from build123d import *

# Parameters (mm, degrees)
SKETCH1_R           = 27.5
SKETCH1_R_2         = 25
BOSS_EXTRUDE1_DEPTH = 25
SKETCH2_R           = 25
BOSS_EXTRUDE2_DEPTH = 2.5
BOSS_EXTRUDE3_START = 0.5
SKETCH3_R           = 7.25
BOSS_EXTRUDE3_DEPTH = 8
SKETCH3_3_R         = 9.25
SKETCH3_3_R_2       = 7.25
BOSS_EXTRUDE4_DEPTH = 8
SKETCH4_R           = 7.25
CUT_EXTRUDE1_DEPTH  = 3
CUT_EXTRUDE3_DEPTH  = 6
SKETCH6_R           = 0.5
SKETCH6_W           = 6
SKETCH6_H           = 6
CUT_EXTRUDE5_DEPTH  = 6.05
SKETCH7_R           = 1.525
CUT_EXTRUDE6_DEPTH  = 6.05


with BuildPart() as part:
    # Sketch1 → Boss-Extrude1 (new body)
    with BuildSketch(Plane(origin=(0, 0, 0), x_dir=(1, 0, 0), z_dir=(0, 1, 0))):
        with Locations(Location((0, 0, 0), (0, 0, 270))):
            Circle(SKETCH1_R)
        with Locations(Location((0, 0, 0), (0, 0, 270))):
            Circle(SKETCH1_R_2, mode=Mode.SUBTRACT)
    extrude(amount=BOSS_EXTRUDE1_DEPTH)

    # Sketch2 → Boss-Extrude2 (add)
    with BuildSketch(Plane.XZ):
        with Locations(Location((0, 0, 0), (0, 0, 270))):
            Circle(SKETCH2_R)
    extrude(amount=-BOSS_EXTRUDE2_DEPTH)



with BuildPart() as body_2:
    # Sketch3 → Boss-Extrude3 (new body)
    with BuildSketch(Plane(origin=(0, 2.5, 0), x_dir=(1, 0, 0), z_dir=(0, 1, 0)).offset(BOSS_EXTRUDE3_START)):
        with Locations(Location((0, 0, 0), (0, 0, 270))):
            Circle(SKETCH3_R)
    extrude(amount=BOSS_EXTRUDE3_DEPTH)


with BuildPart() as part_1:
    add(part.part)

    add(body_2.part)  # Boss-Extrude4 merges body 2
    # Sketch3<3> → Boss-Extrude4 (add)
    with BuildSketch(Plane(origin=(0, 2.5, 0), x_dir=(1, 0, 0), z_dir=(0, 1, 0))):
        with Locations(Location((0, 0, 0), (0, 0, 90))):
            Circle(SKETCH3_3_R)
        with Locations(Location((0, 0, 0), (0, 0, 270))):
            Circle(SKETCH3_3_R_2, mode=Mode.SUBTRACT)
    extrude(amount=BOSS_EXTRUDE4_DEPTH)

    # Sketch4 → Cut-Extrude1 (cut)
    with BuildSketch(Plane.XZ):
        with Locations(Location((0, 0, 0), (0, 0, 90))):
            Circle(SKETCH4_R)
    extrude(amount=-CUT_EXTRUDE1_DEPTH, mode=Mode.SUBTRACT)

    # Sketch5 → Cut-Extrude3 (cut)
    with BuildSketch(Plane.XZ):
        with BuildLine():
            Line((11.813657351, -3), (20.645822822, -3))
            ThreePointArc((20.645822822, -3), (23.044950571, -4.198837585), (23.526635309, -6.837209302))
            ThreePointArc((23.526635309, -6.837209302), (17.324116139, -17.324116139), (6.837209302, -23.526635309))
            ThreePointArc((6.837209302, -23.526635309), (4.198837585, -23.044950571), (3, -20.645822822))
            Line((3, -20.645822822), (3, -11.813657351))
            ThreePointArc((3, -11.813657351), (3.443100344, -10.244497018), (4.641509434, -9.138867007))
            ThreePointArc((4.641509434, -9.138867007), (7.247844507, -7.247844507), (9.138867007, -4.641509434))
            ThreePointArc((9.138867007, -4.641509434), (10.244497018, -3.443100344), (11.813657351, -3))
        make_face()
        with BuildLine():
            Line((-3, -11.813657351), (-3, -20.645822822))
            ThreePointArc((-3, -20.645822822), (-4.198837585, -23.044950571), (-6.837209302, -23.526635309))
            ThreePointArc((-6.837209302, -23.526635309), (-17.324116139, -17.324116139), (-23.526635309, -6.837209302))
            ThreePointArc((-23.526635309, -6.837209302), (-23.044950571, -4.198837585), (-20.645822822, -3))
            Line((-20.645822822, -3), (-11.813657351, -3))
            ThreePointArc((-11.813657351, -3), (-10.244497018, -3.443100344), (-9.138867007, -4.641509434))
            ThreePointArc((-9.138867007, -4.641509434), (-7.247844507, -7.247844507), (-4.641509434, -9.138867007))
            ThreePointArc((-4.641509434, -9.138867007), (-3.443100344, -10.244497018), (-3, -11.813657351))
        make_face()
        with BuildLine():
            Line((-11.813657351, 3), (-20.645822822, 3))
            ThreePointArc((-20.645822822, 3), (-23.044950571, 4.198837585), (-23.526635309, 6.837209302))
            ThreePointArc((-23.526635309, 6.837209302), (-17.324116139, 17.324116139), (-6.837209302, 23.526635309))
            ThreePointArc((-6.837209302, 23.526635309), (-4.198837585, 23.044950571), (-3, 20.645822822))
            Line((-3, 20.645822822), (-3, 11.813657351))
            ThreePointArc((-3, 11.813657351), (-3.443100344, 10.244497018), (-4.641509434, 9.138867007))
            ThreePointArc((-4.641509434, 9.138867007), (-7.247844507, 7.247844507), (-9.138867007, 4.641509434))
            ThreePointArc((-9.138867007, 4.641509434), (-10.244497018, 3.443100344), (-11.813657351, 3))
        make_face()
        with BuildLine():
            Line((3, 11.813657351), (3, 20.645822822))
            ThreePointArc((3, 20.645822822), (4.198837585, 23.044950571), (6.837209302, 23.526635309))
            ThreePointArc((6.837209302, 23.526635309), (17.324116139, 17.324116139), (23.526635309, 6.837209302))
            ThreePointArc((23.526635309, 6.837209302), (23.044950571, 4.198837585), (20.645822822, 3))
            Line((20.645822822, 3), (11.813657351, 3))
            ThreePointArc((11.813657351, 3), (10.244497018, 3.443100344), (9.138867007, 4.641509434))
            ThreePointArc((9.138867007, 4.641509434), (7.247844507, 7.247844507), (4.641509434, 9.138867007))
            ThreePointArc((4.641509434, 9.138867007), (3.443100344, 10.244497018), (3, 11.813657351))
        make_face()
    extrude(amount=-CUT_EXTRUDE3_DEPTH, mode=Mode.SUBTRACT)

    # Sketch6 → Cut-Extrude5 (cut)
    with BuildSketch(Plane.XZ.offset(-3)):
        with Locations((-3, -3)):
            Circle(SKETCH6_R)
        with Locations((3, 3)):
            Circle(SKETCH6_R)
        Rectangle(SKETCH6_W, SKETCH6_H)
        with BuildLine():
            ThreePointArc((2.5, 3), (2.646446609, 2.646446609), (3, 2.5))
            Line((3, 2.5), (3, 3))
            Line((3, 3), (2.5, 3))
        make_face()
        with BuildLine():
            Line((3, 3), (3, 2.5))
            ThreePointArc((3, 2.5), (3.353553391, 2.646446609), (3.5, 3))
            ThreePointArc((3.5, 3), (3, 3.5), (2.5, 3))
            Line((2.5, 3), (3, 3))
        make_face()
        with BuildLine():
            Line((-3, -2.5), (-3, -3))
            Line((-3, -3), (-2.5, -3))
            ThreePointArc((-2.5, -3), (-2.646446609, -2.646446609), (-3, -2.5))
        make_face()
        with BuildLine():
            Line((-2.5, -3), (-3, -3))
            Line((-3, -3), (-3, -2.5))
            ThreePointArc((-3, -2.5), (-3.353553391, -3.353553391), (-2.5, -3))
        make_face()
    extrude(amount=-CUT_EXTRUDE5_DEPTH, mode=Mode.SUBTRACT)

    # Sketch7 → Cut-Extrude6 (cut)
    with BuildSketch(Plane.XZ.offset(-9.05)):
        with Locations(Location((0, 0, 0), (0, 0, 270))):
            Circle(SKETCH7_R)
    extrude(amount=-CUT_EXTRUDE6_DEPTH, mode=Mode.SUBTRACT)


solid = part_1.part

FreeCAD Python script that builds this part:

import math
import FreeCAD as App
import Part
import Sketcher
from FreeCAD import Vector
Q = App.Units.Quantity

doc = App.newDocument("Part")
params = doc.addObject("Spreadsheet::Sheet", "Params")
for row, (alias, value) in enumerate([
    ("sketch1_diameter", "55 mm"),
    ("sketch1_diameter2", "50 mm"),
    ("pad1_length", "25 mm"),
    ("sketch2_diameter", "50 mm"),
    ("pad2_length", "2.5 mm"),
    ("sketch3_diameter", "14.5 mm"),
    ("pad3_length", "8 mm"),
    ("sketch4_diameter", "18.5 mm"),
    ("sketch4_diameter2", "14.5 mm"),
    ("pad4_length", "8 mm"),
    ("sketch5_diameter", "14.5 mm"),
    ("pocket1_length", "3 mm"),
    ("sketch6_radius", "3 mm"),
    ("sketch6_radius2", "24.5 mm"),
    ("sketch6_radius3", "10.25 mm"),
    ("pocket2_length", "6 mm"),
    ("sketch7_radius", "0.5 mm"),
    ("sketch7_width", "5.5 mm"),
    ("pocket3_length", "6.05 mm"),
    ("sketch8_diameter", "3.05 mm"),
    ("pocket4_length", "6.05 mm"),
], start=1):
    params.set(f"A{row}", alias)
    params.set(f"B{row}", "=" + value)
    params.setAlias(f"B{row}", alias)

body = doc.addObject("PartDesign::Body", "Body")

# Sketch on XZ plane
sketch1 = body.newObject("Sketcher::SketchObject", "Sketch")
sketch1.AttachmentSupport = (doc.getObject("XZ_Plane"), [""])
sketch1.MapMode = "FlatFace"
sketch1.addGeometry(Part.Circle(Vector(0, 0, 0), Vector(0, 0, 1), 27.5), False)
sketch1.addGeometry(Part.Circle(Vector(0, 0, 0), Vector(0, 0, 1), 25), False)
sketch1.addConstraint(Sketcher.Constraint("Coincident", 0, 3, -1, 1))
sketch1.addConstraint(Sketcher.Constraint("Coincident", 1, 3, -1, 1))
sketch1.addConstraint(Sketcher.Constraint("Diameter", 0, Q("55 mm")))
sketch1.addConstraint(Sketcher.Constraint("Diameter", 1, Q("50 mm")))
sketch1.setExpression("Constraints[2]", "Params.sketch1_diameter")
sketch1.setExpression("Constraints[3]", "Params.sketch1_diameter2")
pad1 = body.newObject("PartDesign::Pad", "Pad")
pad1.Profile = sketch1
pad1.setExpression("Length", "Params.pad1_length")
pad1.Reversed = True

# Sketch on XZ plane
sketch2 = body.newObject("Sketcher::SketchObject", "Sketch001")
sketch2.AttachmentSupport = (doc.getObject("XZ_Plane"), [""])
sketch2.MapMode = "FlatFace"
sketch2.addGeometry(Part.Circle(Vector(0, 0, 0), Vector(0, 0, 1), 25), False)
sketch2.addConstraint(Sketcher.Constraint("Coincident", 0, 3, -1, 1))
sketch2.addConstraint(Sketcher.Constraint("Diameter", 0, Q("50 mm")))
sketch2.setExpression("Constraints[1]", "Params.sketch2_diameter")
pad2 = body.newObject("PartDesign::Pad", "Pad001")
pad2.Profile = sketch2
pad2.setExpression("Length", "Params.pad2_length")
pad2.Reversed = True
body2 = doc.addObject("PartDesign::Body", "Body001")

# Sketch on XZ plane
sketch3 = body2.newObject("Sketcher::SketchObject", "Sketch002")
sketch3.AttachmentSupport = (doc.getObject("XZ_Plane001"), [""])
sketch3.MapMode = "FlatFace"
sketch3.AttachmentOffset = App.Placement(Vector(0, 0, -3), App.Rotation())
sketch3.addGeometry(Part.Circle(Vector(0, 0, 0), Vector(0, 0, 1), 7.25), False)
sketch3.addConstraint(Sketcher.Constraint("Coincident", 0, 3, -1, 1))
sketch3.addConstraint(Sketcher.Constraint("Diameter", 0, Q("14.5 mm")))
sketch3.setExpression("Constraints[1]", "Params.sketch3_diameter")
pad3 = body2.newObject("PartDesign::Pad", "Pad002")
pad3.Profile = sketch3
pad3.setExpression("Length", "Params.pad3_length")
pad3.Reversed = True
body.AllowCompound = True
doc.recompute()

boolean = body.newObject("PartDesign::Boolean", "Boolean")
boolean.Type = "Fuse"
boolean.addObjects([body2])

# Sketch on XZ plane
sketch4 = body.newObject("Sketcher::SketchObject", "Sketch003")
sketch4.AttachmentSupport = (doc.getObject("XZ_Plane"), [""])
sketch4.MapMode = "FlatFace"
sketch4.AttachmentOffset = App.Placement(Vector(0, 0, -2.5), App.Rotation())
sketch4.addGeometry(Part.Circle(Vector(0, 0, 0), Vector(0, 0, 1), 9.25), False)
sketch4.addGeometry(Part.Circle(Vector(0, 0, 0), Vector(0, 0, 1), 7.25), False)
sketch4.addConstraint(Sketcher.Constraint("Coincident", 0, 3, -1, 1))
sketch4.addConstraint(Sketcher.Constraint("Coincident", 1, 3, -1, 1))
sketch4.addConstraint(Sketcher.Constraint("Diameter", 0, Q("18.5 mm")))
sketch4.addConstraint(Sketcher.Constraint("Diameter", 1, Q("14.5 mm")))
sketch4.setExpression("Constraints[2]", "Params.sketch4_diameter")
sketch4.setExpression("Constraints[3]", "Params.sketch4_diameter2")
pad4 = body.newObject("PartDesign::Pad", "Pad003")
pad4.Profile = sketch4
pad4.setExpression("Length", "Params.pad4_length")
pad4.Reversed = True

# Sketch on XZ plane
sketch5 = body.newObject("Sketcher::SketchObject", "Sketch004")
sketch5.AttachmentSupport = (doc.getObject("XZ_Plane"), [""])
sketch5.MapMode = "FlatFace"
sketch5.addGeometry(Part.Circle(Vector(0, 0, 0), Vector(0, 0, 1), 7.25), False)
sketch5.addConstraint(Sketcher.Constraint("Coincident", 0, 3, -1, 1))
sketch5.addConstraint(Sketcher.Constraint("Diameter", 0, Q("14.5 mm")))
sketch5.setExpression("Constraints[1]", "Params.sketch5_diameter")
pocket1 = body.newObject("PartDesign::Pocket", "Pocket")
pocket1.Profile = sketch5
pocket1.setExpression("Length", "Params.pocket1_length")

# Sketch on XZ plane
sketch6 = body.newObject("Sketcher::SketchObject", "Sketch005")
sketch6.AttachmentSupport = (doc.getObject("XZ_Plane"), [""])
sketch6.MapMode = "FlatFace"
sketch6.addGeometry(Part.LineSegment(Vector(20.645823, -3, 0), Vector(11.813657, -3, 0)), False)
sketch6.addGeometry(Part.ArcOfCircle(Part.Circle(Vector(11.813657, -6, 0), Vector(0, 0, 1), 3), math.radians(90), math.radians(153.074589)), False)
sketch6.addGeometry(Part.ArcOfCircle(Part.Circle(Vector(0, 0, 0), Vector(0, 0, 1), 10.25), math.radians(-63.074589), math.radians(-26.925411)), False)
sketch6.addGeometry(Part.ArcOfCircle(Part.Circle(Vector(6, -11.813657, 0), Vector(0, 0, 1), 3), math.radians(116.925411), math.radians(180)), False)
sketch6.addGeometry(Part.LineSegment(Vector(3, -11.813657, 0), Vector(3, -20.645823, 0)), False)
sketch6.addGeometry(Part.ArcOfCircle(Part.Circle(Vector(6, -20.645823, 0), Vector(0, 0, 1), 3), math.radians(180), math.radians(286.204693)), False)
sketch6.addGeometry(Part.ArcOfCircle(Part.Circle(Vector(0, 0, 0), Vector(0, 0, 1), 24.5), math.radians(-73.795307), math.radians(-16.204693)), False)
sketch6.addGeometry(Part.ArcOfCircle(Part.Circle(Vector(20.645823, -6, 0), Vector(0, 0, 1), 3), math.radians(-16.204693), math.radians(90)), False)
sketch6.addGeometry(Part.LineSegment(Vector(-3, -20.645823, 0), Vector(-3, -11.813657, 0)), False)
sketch6.addGeometry(Part.ArcOfCircle(Part.Circle(Vector(-6, -11.813657, 0), Vector(0, 0, 1), 3), math.radians(0), math.radians(63.074589)), False)
sketch6.addGeometry(Part.ArcOfCircle(Part.Circle(Vector(0, 0, 0), Vector(0, 0, 1), 10.25), math.radians(-153.074589), math.radians(-116.925411)), False)
sketch6.addGeometry(Part.ArcOfCircle(Part.Circle(Vector(-11.813657, -6, 0), Vector(0, 0, 1), 3), math.radians(26.925411), math.radians(90)), False)
sketch6.addGeometry(Part.LineSegment(Vector(-11.813657, -3, 0), Vector(-20.645823, -3, 0)), False)
sketch6.addGeometry(Part.ArcOfCircle(Part.Circle(Vector(-20.645823, -6, 0), Vector(0, 0, 1), 3), math.radians(90), math.radians(196.204693)), False)
sketch6.addGeometry(Part.ArcOfCircle(Part.Circle(Vector(0, 0, 0), Vector(0, 0, 1), 24.5), math.radians(-163.795307), math.radians(-106.204693)), False)
sketch6.addGeometry(Part.ArcOfCircle(Part.Circle(Vector(-6, -20.645823, 0), Vector(0, 0, 1), 3), math.radians(-106.204693), math.radians(0)), False)
sketch6.addGeometry(Part.LineSegment(Vector(-20.645823, 3, 0), Vector(-11.813657, 3, 0)), False)
sketch6.addGeometry(Part.ArcOfCircle(Part.Circle(Vector(-11.813657, 6, 0), Vector(0, 0, 1), 3), math.radians(-90), math.radians(-26.925411)), False)
sketch6.addGeometry(Part.ArcOfCircle(Part.Circle(Vector(0, 0, 0), Vector(0, 0, 1), 10.25), math.radians(116.925411), math.radians(153.074589)), False)
sketch6.addGeometry(Part.ArcOfCircle(Part.Circle(Vector(-6, 11.813657, 0), Vector(0, 0, 1), 3), math.radians(-63.074589), math.radians(0)), False)
sketch6.addGeometry(Part.LineSegment(Vector(-3, 11.813657, 0), Vector(-3, 20.645823, 0)), False)
sketch6.addGeometry(Part.ArcOfCircle(Part.Circle(Vector(-6, 20.645823, 0), Vector(0, 0, 1), 3), math.radians(0), math.radians(106.204693)), False)
sketch6.addGeometry(Part.ArcOfCircle(Part.Circle(Vector(0, 0, 0), Vector(0, 0, 1), 24.5), math.radians(106.204693), math.radians(163.795307)), False)
sketch6.addGeometry(Part.ArcOfCircle(Part.Circle(Vector(-20.645823, 6, 0), Vector(0, 0, 1), 3), math.radians(163.795307), math.radians(270)), False)
sketch6.addGeometry(Part.LineSegment(Vector(3, 20.645823, 0), Vector(3, 11.813657, 0)), False)
sketch6.addGeometry(Part.ArcOfCircle(Part.Circle(Vector(6, 11.813657, 0), Vector(0, 0, 1), 3), math.radians(180), math.radians(243.074589)), False)
sketch6.addGeometry(Part.ArcOfCircle(Part.Circle(Vector(0, 0, 0), Vector(0, 0, 1), 10.25), math.radians(26.925411), math.radians(63.074589)), False)
sketch6.addGeometry(Part.ArcOfCircle(Part.Circle(Vector(11.813657, 6, 0), Vector(0, 0, 1), 3), math.radians(-153.074589), math.radians(-90)), False)
sketch6.addGeometry(Part.LineSegment(Vector(11.813657, 3, 0), Vector(20.645823, 3, 0)), False)
sketch6.addGeometry(Part.ArcOfCircle(Part.Circle(Vector(20.645823, 6, 0), Vector(0, 0, 1), 3), math.radians(-90), math.radians(16.204693)), False)
sketch6.addGeometry(Part.ArcOfCircle(Part.Circle(Vector(0, 0, 0), Vector(0, 0, 1), 24.5), math.radians(16.204693), math.radians(73.795307)), False)
sketch6.addGeometry(Part.ArcOfCircle(Part.Circle(Vector(6, 20.645823, 0), Vector(0, 0, 1), 3), math.radians(73.795307), math.radians(180)), False)
sketch6.addConstraint(Sketcher.Constraint("Tangent", 0, 2, 1, 1))
sketch6.addConstraint(Sketcher.Constraint("Tangent", 1, 2, 2, 2))
sketch6.addConstraint(Sketcher.Constraint("Tangent", 2, 1, 3, 1))
sketch6.addConstraint(Sketcher.Constraint("Tangent", 3, 2, 4, 1))
sketch6.addConstraint(Sketcher.Constraint("Tangent", 4, 2, 5, 1))
sketch6.addConstraint(Sketcher.Constraint("Tangent", 5, 2, 6, 1))
sketch6.addConstraint(Sketcher.Constraint("Tangent", 6, 2, 7, 1))
sketch6.addConstraint(Sketcher.Constraint("Tangent", 7, 2, 0, 1))
sketch6.addConstraint(Sketcher.Constraint("Tangent", 8, 2, 9, 1))
sketch6.addConstraint(Sketcher.Constraint("Tangent", 9, 2, 10, 2))
sketch6.addConstraint(Sketcher.Constraint("Tangent", 10, 1, 11, 1))
sketch6.addConstraint(Sketcher.Constraint("Tangent", 11, 2, 12, 1))
sketch6.addConstraint(Sketcher.Constraint("Tangent", 12, 2, 13, 1))
sketch6.addConstraint(Sketcher.Constraint("Tangent", 13, 2, 14, 1))
sketch6.addConstraint(Sketcher.Constraint("Tangent", 14, 2, 15, 1))
sketch6.addConstraint(Sketcher.Constraint("Tangent", 15, 2, 8, 1))
sketch6.addConstraint(Sketcher.Constraint("Tangent", 16, 2, 17, 1))
sketch6.addConstraint(Sketcher.Constraint("Tangent", 17, 2, 18, 2))
sketch6.addConstraint(Sketcher.Constraint("Tangent", 18, 1, 19, 1))
sketch6.addConstraint(Sketcher.Constraint("Tangent", 19, 2, 20, 1))
sketch6.addConstraint(Sketcher.Constraint("Tangent", 20, 2, 21, 1))
sketch6.addConstraint(Sketcher.Constraint("Tangent", 21, 2, 22, 1))
sketch6.addConstraint(Sketcher.Constraint("Tangent", 22, 2, 23, 1))
sketch6.addConstraint(Sketcher.Constraint("Tangent", 23, 2, 16, 1))
sketch6.addConstraint(Sketcher.Constraint("Tangent", 24, 2, 25, 1))
sketch6.addConstraint(Sketcher.Constraint("Tangent", 25, 2, 26, 2))
sketch6.addConstraint(Sketcher.Constraint("Tangent", 26, 1, 27, 1))
sketch6.addConstraint(Sketcher.Constraint("Tangent", 27, 2, 28, 1))
sketch6.addConstraint(Sketcher.Constraint("Tangent", 28, 2, 29, 1))
sketch6.addConstraint(Sketcher.Constraint("Tangent", 29, 2, 30, 1))
sketch6.addConstraint(Sketcher.Constraint("Tangent", 30, 2, 31, 1))
sketch6.addConstraint(Sketcher.Constraint("Tangent", 31, 2, 24, 1))
sketch6.addConstraint(Sketcher.Constraint("Horizontal", 0))
sketch6.addConstraint(Sketcher.Constraint("Vertical", 4))
sketch6.addConstraint(Sketcher.Constraint("Vertical", 8))
sketch6.addConstraint(Sketcher.Constraint("Horizontal", 12))
sketch6.addConstraint(Sketcher.Constraint("Horizontal", 16))
sketch6.addConstraint(Sketcher.Constraint("Vertical", 20))
sketch6.addConstraint(Sketcher.Constraint("Vertical", 24))
sketch6.addConstraint(Sketcher.Constraint("Horizontal", 28))
sketch6.addConstraint(Sketcher.Constraint("Coincident", 2, 3, -1, 1))
sketch6.addConstraint(Sketcher.Constraint("Coincident", 6, 3, -1, 1))
sketch6.addConstraint(Sketcher.Constraint("Coincident", 10, 3, -1, 1))
sketch6.addConstraint(Sketcher.Constraint("Coincident", 14, 3, -1, 1))
sketch6.addConstraint(Sketcher.Constraint("Coincident", 18, 3, -1, 1))
sketch6.addConstraint(Sketcher.Constraint("Coincident", 22, 3, -1, 1))
sketch6.addConstraint(Sketcher.Constraint("Coincident", 26, 3, -1, 1))
sketch6.addConstraint(Sketcher.Constraint("Coincident", 30, 3, -1, 1))
sketch6.addConstraint(Sketcher.Constraint("Equal", 1, 3))
sketch6.addConstraint(Sketcher.Constraint("Equal", 3, 5))
sketch6.addConstraint(Sketcher.Constraint("Equal", 5, 7))
sketch6.addConstraint(Sketcher.Constraint("Equal", 7, 9))
sketch6.addConstraint(Sketcher.Constraint("Equal", 2, 10))
sketch6.addConstraint(Sketcher.Constraint("Equal", 9, 11))
sketch6.addConstraint(Sketcher.Constraint("Equal", 11, 13))
sketch6.addConstraint(Sketcher.Constraint("Equal", 6, 14))
sketch6.addConstraint(Sketcher.Constraint("Equal", 13, 15))
sketch6.addConstraint(Sketcher.Constraint("Equal", 15, 17))
sketch6.addConstraint(Sketcher.Constraint("Equal", 10, 18))
sketch6.addConstraint(Sketcher.Constraint("Equal", 17, 19))
sketch6.addConstraint(Sketcher.Constraint("Equal", 19, 21))
sketch6.addConstraint(Sketcher.Constraint("Equal", 14, 22))
sketch6.addConstraint(Sketcher.Constraint("Equal", 21, 23))
sketch6.addConstraint(Sketcher.Constraint("Equal", 23, 25))
sketch6.addConstraint(Sketcher.Constraint("Equal", 18, 26))
sketch6.addConstraint(Sketcher.Constraint("Equal", 25, 27))
sketch6.addConstraint(Sketcher.Constraint("Equal", 27, 29))
sketch6.addConstraint(Sketcher.Constraint("Equal", 22, 30))
sketch6.addConstraint(Sketcher.Constraint("Equal", 29, 31))
sketch6.addConstraint(Sketcher.Constraint("Horizontal", 3, 3, 9, 3))
sketch6.addConstraint(Sketcher.Constraint("Horizontal", 7, 3, 11, 3))
sketch6.addConstraint(Sketcher.Constraint("Horizontal", 19, 3, 25, 3))
sketch6.addConstraint(Sketcher.Constraint("Horizontal", 23, 3, 27, 3))
sketch6.addConstraint(Sketcher.Constraint("Vertical", 11, 3, 17, 3))
sketch6.addConstraint(Sketcher.Constraint("Vertical", 15, 3, 19, 3))
sketch6.addConstraint(Sketcher.Constraint("Equal", 28, 4))
sketch6.addConstraint(Sketcher.Constraint("Radius", 1, Q("3 mm")))
sketch6.addConstraint(Sketcher.Constraint("Radius", 6, Q("24.5 mm")))
sketch6.addConstraint(Sketcher.Constraint("Radius", 2, Q("10.25 mm")))
sketch6.addConstraint(Sketcher.Constraint("DistanceY", 1, 3, -1, 1, Q("6 mm")))
sketch6.setExpression("Constraints[76]", "Params.sketch6_radius")
sketch6.setExpression("Constraints[77]", "Params.sketch6_radius2")
sketch6.setExpression("Constraints[78]", "Params.sketch6_radius3")
pocket2 = body.newObject("PartDesign::Pocket", "Pocket001")
pocket2.Profile = sketch6
pocket2.setExpression("Length", "Params.pocket2_length")

# Sketch on XZ plane
sketch7 = body.newObject("Sketcher::SketchObject", "Sketch006")
sketch7.AttachmentSupport = (doc.getObject("XZ_Plane"), [""])
sketch7.MapMode = "FlatFace"
sketch7.AttachmentOffset = App.Placement(Vector(0, 0, -3), App.Rotation())
sketch7.addGeometry(Part.LineSegment(Vector(-3, 3, 0), Vector(-3, -2.5, 0)), False)
sketch7.addGeometry(Part.ArcOfCircle(Part.Circle(Vector(-3, -3, 0), Vector(0, 0, 1), 0.5), math.radians(90), math.radians(360)), False)
sketch7.addGeometry(Part.LineSegment(Vector(-2.5, -3, 0), Vector(3, -3, 0)), False)
sketch7.addGeometry(Part.LineSegment(Vector(3, -3, 0), Vector(3, 2.5, 0)), False)
sketch7.addGeometry(Part.ArcOfCircle(Part.Circle(Vector(3, 3, 0), Vector(0, 0, 1), 0.5), math.radians(-90), math.radians(180)), False)
sketch7.addGeometry(Part.LineSegment(Vector(2.5, 3, 0), Vector(-3, 3, 0)), False)
sketch7.addConstraint(Sketcher.Constraint("Coincident", 0, 2, 1, 1))
sketch7.addConstraint(Sketcher.Constraint("Coincident", 1, 2, 2, 1))
sketch7.addConstraint(Sketcher.Constraint("Coincident", 2, 2, 3, 1))
sketch7.addConstraint(Sketcher.Constraint("Coincident", 3, 2, 4, 1))
sketch7.addConstraint(Sketcher.Constraint("Coincident", 4, 2, 5, 1))
sketch7.addConstraint(Sketcher.Constraint("Coincident", 5, 2, 0, 1))
sketch7.addConstraint(Sketcher.Constraint("Vertical", 0))
sketch7.addConstraint(Sketcher.Constraint("Horizontal", 2))
sketch7.addConstraint(Sketcher.Constraint("Vertical", 3))
sketch7.addConstraint(Sketcher.Constraint("Horizontal", 5))
sketch7.addConstraint(Sketcher.Constraint("Equal", 1, 4))
sketch7.addConstraint(Sketcher.Constraint("Symmetric", 1, 3, 4, 3, -1, 1))
sketch7.addConstraint(Sketcher.Constraint("Symmetric", 2, 2, 5, 2, -1, 1))
sketch7.addConstraint(Sketcher.Constraint("Vertical", 1, 3, 0, 2))
sketch7.addConstraint(Sketcher.Constraint("Equal", 5, 0))
sketch7.addConstraint(Sketcher.Constraint("Radius", 1, Q("0.5 mm")))
sketch7.addConstraint(Sketcher.Constraint("DistanceX", 2, 1, 2, 2, Q("5.5 mm")))
sketch7.addConstraint(Sketcher.Constraint("DistanceY", 1, 3, -1, 1, Q("3 mm")))
sketch7.setExpression("Constraints[15]", "Params.sketch7_radius")
sketch7.setExpression("Constraints[16]", "Params.sketch7_width")
pocket3 = body.newObject("PartDesign::Pocket", "Pocket002")
pocket3.Profile = sketch7
pocket3.setExpression("Length", "Params.pocket3_length")

# Sketch on XZ plane
sketch8 = body.newObject("Sketcher::SketchObject", "Sketch007")
sketch8.AttachmentSupport = (doc.getObject("XZ_Plane"), [""])
sketch8.MapMode = "FlatFace"
sketch8.AttachmentOffset = App.Placement(Vector(0, 0, -9.05), App.Rotation())
sketch8.addGeometry(Part.Circle(Vector(0, 0, 0), Vector(0, 0, 1), 1.525), False)
sketch8.addConstraint(Sketcher.Constraint("Coincident", 0, 3, -1, 1))
sketch8.addConstraint(Sketcher.Constraint("Diameter", 0, Q("3.05 mm")))
sketch8.setExpression("Constraints[1]", "Params.sketch8_diameter")
pocket4 = body.newObject("PartDesign::Pocket", "Pocket003")
pocket4.Profile = sketch8
pocket4.setExpression("Length", "Params.pocket4_length")

doc.recompute()
